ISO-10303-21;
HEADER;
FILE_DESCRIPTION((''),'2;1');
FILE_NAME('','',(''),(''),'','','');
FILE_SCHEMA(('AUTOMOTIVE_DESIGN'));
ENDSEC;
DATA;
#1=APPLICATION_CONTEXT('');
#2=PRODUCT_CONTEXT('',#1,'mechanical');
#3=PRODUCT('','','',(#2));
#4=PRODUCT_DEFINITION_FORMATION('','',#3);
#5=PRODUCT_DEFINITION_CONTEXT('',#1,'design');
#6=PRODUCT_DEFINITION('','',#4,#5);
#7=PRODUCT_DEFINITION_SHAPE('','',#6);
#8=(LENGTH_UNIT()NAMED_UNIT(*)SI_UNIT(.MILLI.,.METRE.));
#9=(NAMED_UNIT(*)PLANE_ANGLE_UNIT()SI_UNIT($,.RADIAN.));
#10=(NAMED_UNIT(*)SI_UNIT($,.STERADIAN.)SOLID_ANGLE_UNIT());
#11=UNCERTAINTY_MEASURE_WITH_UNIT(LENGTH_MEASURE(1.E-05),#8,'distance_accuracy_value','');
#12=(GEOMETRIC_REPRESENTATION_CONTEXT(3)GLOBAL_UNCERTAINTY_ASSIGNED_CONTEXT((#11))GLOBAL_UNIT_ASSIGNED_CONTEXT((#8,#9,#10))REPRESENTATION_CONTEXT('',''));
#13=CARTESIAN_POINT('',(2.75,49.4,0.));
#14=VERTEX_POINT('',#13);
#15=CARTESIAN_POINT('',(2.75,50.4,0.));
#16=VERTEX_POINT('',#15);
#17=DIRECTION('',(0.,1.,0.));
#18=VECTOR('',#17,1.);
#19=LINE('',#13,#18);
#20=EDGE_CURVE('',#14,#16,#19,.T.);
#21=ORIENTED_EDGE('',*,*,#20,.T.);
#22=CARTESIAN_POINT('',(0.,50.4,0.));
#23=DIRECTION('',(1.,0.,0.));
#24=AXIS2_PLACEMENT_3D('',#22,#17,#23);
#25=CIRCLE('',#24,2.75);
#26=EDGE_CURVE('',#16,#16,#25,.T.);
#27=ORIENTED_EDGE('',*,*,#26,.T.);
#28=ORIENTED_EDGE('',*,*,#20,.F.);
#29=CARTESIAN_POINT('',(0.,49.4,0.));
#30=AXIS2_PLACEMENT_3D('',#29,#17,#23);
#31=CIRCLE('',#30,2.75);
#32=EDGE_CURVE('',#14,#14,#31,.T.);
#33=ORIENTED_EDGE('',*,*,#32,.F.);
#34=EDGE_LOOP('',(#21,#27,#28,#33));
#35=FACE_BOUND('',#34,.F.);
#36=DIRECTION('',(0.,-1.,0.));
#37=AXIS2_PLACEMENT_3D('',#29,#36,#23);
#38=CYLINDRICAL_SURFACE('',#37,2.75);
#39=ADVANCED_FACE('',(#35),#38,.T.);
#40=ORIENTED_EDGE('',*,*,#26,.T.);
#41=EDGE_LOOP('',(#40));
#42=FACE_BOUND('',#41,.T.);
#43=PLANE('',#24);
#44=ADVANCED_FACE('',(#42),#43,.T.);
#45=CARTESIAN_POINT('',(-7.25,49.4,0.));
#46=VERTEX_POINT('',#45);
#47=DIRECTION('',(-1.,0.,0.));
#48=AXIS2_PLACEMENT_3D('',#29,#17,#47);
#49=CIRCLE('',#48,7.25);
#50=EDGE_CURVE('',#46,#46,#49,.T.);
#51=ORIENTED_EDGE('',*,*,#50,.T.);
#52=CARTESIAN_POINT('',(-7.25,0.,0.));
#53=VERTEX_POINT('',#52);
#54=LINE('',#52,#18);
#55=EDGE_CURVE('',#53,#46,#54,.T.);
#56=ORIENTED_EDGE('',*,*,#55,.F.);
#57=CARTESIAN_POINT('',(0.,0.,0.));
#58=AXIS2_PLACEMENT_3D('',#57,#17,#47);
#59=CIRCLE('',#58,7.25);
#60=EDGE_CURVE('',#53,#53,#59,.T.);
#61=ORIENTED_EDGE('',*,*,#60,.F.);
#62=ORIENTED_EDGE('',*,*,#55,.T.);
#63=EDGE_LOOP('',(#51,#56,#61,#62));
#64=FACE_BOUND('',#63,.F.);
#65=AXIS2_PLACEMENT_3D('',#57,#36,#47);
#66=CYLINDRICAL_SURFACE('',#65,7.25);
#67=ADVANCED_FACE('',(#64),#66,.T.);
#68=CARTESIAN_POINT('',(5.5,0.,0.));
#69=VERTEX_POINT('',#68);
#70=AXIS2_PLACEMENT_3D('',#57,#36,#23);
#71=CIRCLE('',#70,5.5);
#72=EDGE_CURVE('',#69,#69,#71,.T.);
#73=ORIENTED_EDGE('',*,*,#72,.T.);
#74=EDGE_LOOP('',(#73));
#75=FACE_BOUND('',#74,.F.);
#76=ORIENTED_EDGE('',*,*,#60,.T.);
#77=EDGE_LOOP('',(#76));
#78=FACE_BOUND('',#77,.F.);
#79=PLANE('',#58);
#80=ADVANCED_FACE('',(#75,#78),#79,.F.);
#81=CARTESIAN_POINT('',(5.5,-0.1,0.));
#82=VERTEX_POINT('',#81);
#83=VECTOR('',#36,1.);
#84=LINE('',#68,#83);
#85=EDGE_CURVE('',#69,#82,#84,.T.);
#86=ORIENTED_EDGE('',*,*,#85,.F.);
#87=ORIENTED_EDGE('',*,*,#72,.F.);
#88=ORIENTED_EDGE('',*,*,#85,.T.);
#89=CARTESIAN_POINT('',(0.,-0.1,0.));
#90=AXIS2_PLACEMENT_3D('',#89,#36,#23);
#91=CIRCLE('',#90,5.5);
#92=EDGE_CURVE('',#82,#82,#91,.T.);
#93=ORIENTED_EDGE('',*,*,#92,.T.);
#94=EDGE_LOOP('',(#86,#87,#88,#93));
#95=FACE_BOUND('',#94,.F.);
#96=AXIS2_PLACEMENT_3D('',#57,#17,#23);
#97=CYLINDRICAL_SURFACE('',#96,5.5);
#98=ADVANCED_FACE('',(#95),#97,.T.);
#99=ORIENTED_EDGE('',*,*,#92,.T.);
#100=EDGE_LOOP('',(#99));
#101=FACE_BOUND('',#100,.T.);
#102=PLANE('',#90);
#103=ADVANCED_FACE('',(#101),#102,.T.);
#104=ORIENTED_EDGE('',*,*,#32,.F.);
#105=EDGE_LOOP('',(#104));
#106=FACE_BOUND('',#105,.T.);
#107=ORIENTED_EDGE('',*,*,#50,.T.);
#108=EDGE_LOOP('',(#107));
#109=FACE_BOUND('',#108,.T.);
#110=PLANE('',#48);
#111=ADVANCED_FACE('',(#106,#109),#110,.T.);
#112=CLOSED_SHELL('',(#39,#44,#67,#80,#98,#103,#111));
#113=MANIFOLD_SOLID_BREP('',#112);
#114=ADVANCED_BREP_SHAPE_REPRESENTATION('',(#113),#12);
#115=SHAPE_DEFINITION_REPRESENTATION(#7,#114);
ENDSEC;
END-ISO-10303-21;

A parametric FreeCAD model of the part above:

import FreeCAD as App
import Part
import Sketcher
from FreeCAD import Vector

doc = App.newDocument("Part")
body = doc.addObject("PartDesign::Body", "Body")

sketch1 = body.newObject("Sketcher::SketchObject", "Sketch")
sketch1.AttachmentSupport = (doc.getObject("XZ_Plane"), [""])
sketch1.MapMode = "FlatFace"
sketch1.addGeometry(Part.Circle(Vector(0, 0, 0), Vector(0, 0, 1), 7), False)
sketch1.addConstraint(Sketcher.Constraint("Coincident", 0, 3, -1, 1))
sketch1.addConstraint(Sketcher.Constraint("Diameter", 0, 14.5))
pad1 = body.newObject("PartDesign::Pad", "Pad")
pad1.Profile = sketch1
pad1.Length = 49.4
pad1.Reversed = True

sketch2 = body.newObject("Sketcher::SketchObject", "Sketch001")
sketch2.AttachmentSupport = (doc.getObject("XZ_Plane"), [""])
sketch2.MapMode = "FlatFace"
sketch2.AttachmentOffset = App.Placement(Vector(0, 0, -49.4), App.Rotation())
sketch2.addGeometry(Part.Circle(Vector(0, 0, 0), Vector(0, 0, 1), 2.8), False)
sketch2.addConstraint(Sketcher.Constraint("Coincident", 0, 3, -1, 1))
sketch2.addConstraint(Sketcher.Constraint("Diameter", 0, 5.5))
pad2 = body.newObject("PartDesign::Pad", "Pad001")
pad2.Profile = sketch2
pad2.Length = 1
pad2.Reversed = True

sketch3 = body.newObject("Sketcher::SketchObject", "Sketch002")
sketch3.AttachmentSupport = (doc.getObject("XZ_Plane"), [""])
sketch3.MapMode = "FlatFace"
sketch3.addGeometry(Part.Circle(Vector(0, 0, 0), Vector(0, 0, 1), 6), False)
sketch3.addConstraint(Sketcher.Constraint("Coincident", 0, 3, -1, 1))
sketch3.addConstraint(Sketcher.Constraint("Diameter", 0, 11.0))
pad3 = body.newObject("PartDesign::Pad", "Pad002")
pad3.Profile = sketch3
pad3.Length = 0.1

doc.recompute()
